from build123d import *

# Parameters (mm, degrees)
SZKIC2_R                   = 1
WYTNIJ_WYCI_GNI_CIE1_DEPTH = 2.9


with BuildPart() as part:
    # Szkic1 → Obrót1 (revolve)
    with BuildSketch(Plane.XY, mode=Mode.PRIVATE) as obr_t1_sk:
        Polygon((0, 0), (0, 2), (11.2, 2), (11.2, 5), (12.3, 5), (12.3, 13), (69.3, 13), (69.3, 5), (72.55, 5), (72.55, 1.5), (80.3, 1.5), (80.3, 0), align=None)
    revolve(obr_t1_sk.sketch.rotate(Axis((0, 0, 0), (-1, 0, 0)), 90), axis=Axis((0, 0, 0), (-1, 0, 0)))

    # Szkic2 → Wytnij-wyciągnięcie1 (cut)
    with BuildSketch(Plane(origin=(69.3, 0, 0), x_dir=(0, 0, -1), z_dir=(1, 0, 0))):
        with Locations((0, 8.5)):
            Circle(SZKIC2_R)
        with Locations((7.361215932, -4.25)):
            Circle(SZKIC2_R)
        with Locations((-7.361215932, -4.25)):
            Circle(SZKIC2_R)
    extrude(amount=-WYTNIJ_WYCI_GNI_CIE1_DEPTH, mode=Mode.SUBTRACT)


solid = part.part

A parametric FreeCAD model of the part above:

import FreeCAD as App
import Part
import Sketcher
Q = App.Units.Quantity


def add_polygon(sketch, points):
    """Adds a closed chain of lines whose ends are joined by coincident constraints."""
    first, n = sketch.GeometryCount, len(points)
    for a, b in zip(points, points[1:] + points[:1]):
        sketch.addGeometry(Part.LineSegment(App.Vector(*a, 0), App.Vector(*b, 0)), False)
    for i in range(n):
        sketch.addConstraint(Sketcher.Constraint("Coincident", first + i, 2, first + (i + 1) % n, 1))

doc = App.newDocument("Part")
body = doc.addObject("PartDesign::Body", "Body")

# Sketch on XY plane
sketch1 = body.newObject("Sketcher::SketchObject", "Sketch")
sketch1.AttachmentSupport = (doc.getObject("XY_Plane"), [""])
sketch1.MapMode = "FlatFace"
add_polygon(sketch1, [(0, 2), (0, 0), (80.3, 0), (80.3, 1.5), (72.5, 1.5), (72.5, 5), (69.3, 5), (69.3, 13), (12.3, 13), (12.3, 5), (11.2, 5), (11.2, 2)])  # lines 0-11
sketch1.addConstraint(Sketcher.Constraint("Vertical", 0))
sketch1.addConstraint(Sketcher.Constraint("Horizontal", 1))
sketch1.addConstraint(Sketcher.Constraint("Vertical", 2))
sketch1.addConstraint(Sketcher.Constraint("Horizontal", 3))
sketch1.addConstraint(Sketcher.Constraint("Vertical", 4))
sketch1.addConstraint(Sketcher.Constraint("Horizontal", 5))
sketch1.addConstraint(Sketcher.Constraint("Vertical", 6))
sketch1.addConstraint(Sketcher.Constraint("Horizontal", 7))
sketch1.addConstraint(Sketcher.Constraint("Vertical", 8))
sketch1.addConstraint(Sketcher.Constraint("Horizontal", 9))
sketch1.addConstraint(Sketcher.Constraint("Vertical", 10))
sketch1.addConstraint(Sketcher.Constraint("Horizontal", 11))
sketch1.addConstraint(Sketcher.Constraint("Coincident", 0, 2, -1, 1))
sketch1.addConstraint(Sketcher.Constraint("Horizontal", 5, 2, 8, 2))
sketch1.addConstraint(Sketcher.Constraint("DistanceX", 7, 2, 7, 1, Q("57 mm")))
sketch1.addConstraint(Sketcher.Constraint("DistanceY", 0, 2, 0, 1, Q("2 mm")))
sketch1.addConstraint(Sketcher.Constraint("DistanceY", 6, 1, 6, 2, Q("8 mm")))
sketch1.addConstraint(Sketcher.Constraint("DistanceY", 10, 2, 10, 1, Q("3 mm")))
sketch1.addConstraint(Sketcher.Constraint("DistanceX", 1, 1, 1, 2, Q("80.3 mm")))
sketch1.addConstraint(Sketcher.Constraint("DistanceX", 9, 2, 9, 1, Q("1.1 mm")))
sketch1.addConstraint(Sketcher.Constraint("DistanceX", 11, 2, 11, 1, Q("11.2 mm")))
sketch1.addConstraint(Sketcher.Constraint("DistanceY", 2, 1, 2, 2, Q("1.5 mm")))
sketch1.addConstraint(Sketcher.Constraint("DistanceX", 3, 2, 3, 1, Q("7.75 mm")))
revolution = body.newObject("PartDesign::Revolution", "Revolution")
revolution.Profile = sketch1
revolution.ReferenceAxis = (sketch1, ["H_Axis"])
revolution.Angle = 360

# Sketch on YZ plane
sketch2 = body.newObject("Sketcher::SketchObject", "Sketch001")
sketch2.AttachmentSupport = (doc.getObject("YZ_Plane"), [""])
sketch2.MapMode = "FlatFace"
sketch2.AttachmentOffset = App.Placement(App.Vector(0, 0, 69.3), App.Rotation())
sketch2.addGeometry(Part.Circle(App.Vector(8.5, 0, 0), App.Vector(0, 0, 1), 1), False)
sketch2.addGeometry(Part.Circle(App.Vector(-4.2, -7.4, 0), App.Vector(0, 0, 1), 1), False)
sketch2.addGeometry(Part.Circle(App.Vector(-4.2, 7.4, 0), App.Vector(0, 0, 1), 1), False)
sketch2.addConstraint(Sketcher.Constraint("Equal", 0, 1))
sketch2.addConstraint(Sketcher.Constraint("Equal", 1, 2))
sketch2.addConstraint(Sketcher.Constraint("Symmetric", 1, 3, 2, 3, -1))
sketch2.addConstraint(Sketcher.Constraint("PointOnObject", 0, 3, -1))
sketch2.addConstraint(Sketcher.Constraint("Diameter", 0, Q("2 mm")))
sketch2.addConstraint(Sketcher.Constraint("DistanceX", -1, 1, 0, 3, Q("8.5 mm")))
sketch2.addConstraint(Sketcher.Constraint("DistanceX", 1, 3, -1, 1, Q("4.25 mm")))
sketch2.addConstraint(Sketcher.Constraint("DistanceY", 1, 3, 2, 3, Q("14.722432 mm")))
pocket1 = body.newObject("PartDesign::Pocket", "Pocket")
pocket1.Profile = sketch2
pocket1.Length = 2.9

doc.recompute()
